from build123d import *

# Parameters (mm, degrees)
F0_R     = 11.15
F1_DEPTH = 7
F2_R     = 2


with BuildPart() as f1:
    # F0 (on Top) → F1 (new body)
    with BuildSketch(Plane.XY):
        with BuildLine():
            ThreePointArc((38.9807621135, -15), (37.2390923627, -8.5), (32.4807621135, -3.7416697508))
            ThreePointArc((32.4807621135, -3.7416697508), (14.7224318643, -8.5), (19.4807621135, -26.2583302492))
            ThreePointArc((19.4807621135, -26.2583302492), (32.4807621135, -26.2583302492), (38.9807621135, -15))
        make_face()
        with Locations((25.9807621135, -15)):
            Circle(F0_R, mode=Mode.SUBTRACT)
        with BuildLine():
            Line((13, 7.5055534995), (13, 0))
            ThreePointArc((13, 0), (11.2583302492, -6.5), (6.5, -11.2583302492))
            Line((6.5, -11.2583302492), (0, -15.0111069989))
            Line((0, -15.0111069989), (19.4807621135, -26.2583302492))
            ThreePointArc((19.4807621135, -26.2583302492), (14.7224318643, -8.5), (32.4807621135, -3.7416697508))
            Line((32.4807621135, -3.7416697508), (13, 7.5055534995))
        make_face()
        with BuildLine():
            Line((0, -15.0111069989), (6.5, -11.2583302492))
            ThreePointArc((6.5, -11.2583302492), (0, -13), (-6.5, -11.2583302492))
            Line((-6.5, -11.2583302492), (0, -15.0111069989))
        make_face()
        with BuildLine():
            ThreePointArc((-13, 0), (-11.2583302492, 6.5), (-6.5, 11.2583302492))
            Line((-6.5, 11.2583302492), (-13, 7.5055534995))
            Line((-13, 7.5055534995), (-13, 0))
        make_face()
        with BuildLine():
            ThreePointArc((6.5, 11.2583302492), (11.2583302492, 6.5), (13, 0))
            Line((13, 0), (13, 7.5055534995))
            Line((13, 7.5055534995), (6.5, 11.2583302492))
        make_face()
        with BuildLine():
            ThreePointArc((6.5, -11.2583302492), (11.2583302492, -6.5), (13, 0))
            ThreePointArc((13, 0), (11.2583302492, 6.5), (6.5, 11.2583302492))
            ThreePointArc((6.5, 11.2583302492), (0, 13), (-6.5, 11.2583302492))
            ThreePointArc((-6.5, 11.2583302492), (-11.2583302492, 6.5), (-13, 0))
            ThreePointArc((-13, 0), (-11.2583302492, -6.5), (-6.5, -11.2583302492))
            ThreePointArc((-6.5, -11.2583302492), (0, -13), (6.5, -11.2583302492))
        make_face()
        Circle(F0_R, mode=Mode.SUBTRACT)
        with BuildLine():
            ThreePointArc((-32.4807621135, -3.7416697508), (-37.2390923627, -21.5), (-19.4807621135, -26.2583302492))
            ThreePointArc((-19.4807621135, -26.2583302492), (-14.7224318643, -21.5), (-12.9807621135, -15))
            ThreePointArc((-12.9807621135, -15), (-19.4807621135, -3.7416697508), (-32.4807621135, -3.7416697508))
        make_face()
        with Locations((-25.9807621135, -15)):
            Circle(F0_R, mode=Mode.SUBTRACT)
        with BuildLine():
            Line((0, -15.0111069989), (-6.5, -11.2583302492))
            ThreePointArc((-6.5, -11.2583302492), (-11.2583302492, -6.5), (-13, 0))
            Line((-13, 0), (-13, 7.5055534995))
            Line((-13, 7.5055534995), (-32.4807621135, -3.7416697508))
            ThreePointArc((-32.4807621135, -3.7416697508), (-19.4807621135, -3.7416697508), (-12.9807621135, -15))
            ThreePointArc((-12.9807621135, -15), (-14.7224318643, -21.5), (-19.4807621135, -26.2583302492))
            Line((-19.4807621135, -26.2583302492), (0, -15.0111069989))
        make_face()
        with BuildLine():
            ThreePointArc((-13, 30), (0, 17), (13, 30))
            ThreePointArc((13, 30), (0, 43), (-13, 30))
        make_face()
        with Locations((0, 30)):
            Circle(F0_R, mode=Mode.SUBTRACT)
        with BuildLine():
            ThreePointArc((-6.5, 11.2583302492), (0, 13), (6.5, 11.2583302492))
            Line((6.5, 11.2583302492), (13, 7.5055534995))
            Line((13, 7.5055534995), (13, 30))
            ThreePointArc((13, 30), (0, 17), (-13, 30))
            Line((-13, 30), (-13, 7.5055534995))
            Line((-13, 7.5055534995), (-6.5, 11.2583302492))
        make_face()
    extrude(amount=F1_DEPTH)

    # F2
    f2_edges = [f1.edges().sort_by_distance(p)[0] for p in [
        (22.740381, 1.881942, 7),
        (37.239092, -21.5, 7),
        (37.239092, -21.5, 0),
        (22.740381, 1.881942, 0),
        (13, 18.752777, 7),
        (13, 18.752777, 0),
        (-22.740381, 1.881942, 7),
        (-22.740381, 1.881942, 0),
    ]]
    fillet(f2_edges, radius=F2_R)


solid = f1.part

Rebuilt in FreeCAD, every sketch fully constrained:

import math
import FreeCAD as App
import Part
import Sketcher
from FreeCAD import Vector
Q = App.Units.Quantity


def edges_at(feature, points):
    """Names of the edges that pass closest to the given points."""
    edges = feature.Shape.Edges
    near = lambda p: min(range(len(edges)), key=lambda i: edges[i].distToShape(Part.Vertex(*p))[0])
    return sorted({f"Edge{near(p) + 1}" for p in points})

doc = App.newDocument("Part")
body = doc.addObject("PartDesign::Body", "Body")

# Sketch on XY plane
sketch1 = body.newObject("Sketcher::SketchObject", "Sketch")
sketch1.AttachmentSupport = (doc.getObject("XY_Plane"), [""])
sketch1.MapMode = "FlatFace"
sketch1.addGeometry([
    Part.ArcOfCircle(Part.Circle(Vector(25.980762, -15, 0), Vector(0, 0, 1), 13), math.radians(-120), math.radians(60)),  # 0
    Part.LineSegment(Vector(32.480762, -3.74167, 0), Vector(13, 7.505553, 0)),  # 1
    Part.LineSegment(Vector(13, 7.505554, 0), Vector(13, 30, 0)),  # 2
    Part.ArcOfCircle(Part.Circle(Vector(0, 30, 0), Vector(0, 0, 1), 13), math.radians(0), math.radians(180)),  # 3
    Part.LineSegment(Vector(-13, 30, 0), Vector(-13, 7.505553, 0)),  # 4
    Part.LineSegment(Vector(-13, 7.505554, 0), Vector(-32.480762, -3.74167, 0)),  # 5
    Part.ArcOfCircle(Part.Circle(Vector(-25.980762, -15, 0), Vector(0, 0, 1), 13), math.radians(120), math.radians(300)),  # 6
    Part.LineSegment(Vector(-19.480762, -26.25833, 0), Vector(0, -15.011107, 0)),  # 7
    Part.LineSegment(Vector(0, -15.011107, 0), Vector(19.480762, -26.25833, 0)),  # 8
    Part.Circle(Vector(25.980762, -15, 0), Vector(0, 0, 1), 11.15),  # 9
    Part.Circle(Vector(0, 0, 0), Vector(0, 0, 1), 11.15),  # 10
    Part.Circle(Vector(-25.980762, -15, 0), Vector(0, 0, 1), 11.15),  # 11
    Part.Circle(Vector(0, 30, 0), Vector(0, 0, 1), 11.15),  # 12
], False)
sketch1.addConstraint([
    Sketcher.Constraint("Tangent", 0, 2, 1, 1),
    Sketcher.Constraint("Coincident", 1, 2, 2, 1),
    Sketcher.Constraint("Tangent", 2, 2, 3, 1),
    Sketcher.Constraint("Tangent", 3, 2, 4, 1),
    Sketcher.Constraint("Coincident", 4, 2, 5, 1),
    Sketcher.Constraint("Tangent", 5, 2, 6, 1),
    Sketcher.Constraint("Tangent", 6, 2, 7, 1),
    Sketcher.Constraint("Coincident", 7, 2, 8, 1),
    Sketcher.Constraint("Tangent", 8, 2, 0, 1),
    Sketcher.Constraint("Vertical", 2),
    Sketcher.Constraint("Vertical", 4),
    Sketcher.Constraint("Coincident", 10, 3, -1, 1),
    Sketcher.Constraint("Coincident", 9, 3, 0, 3),
    Sketcher.Constraint("Coincident", 11, 3, 6, 3),
    Sketcher.Constraint("Coincident", 12, 3, 3, 3),
    Sketcher.Constraint("Equal", 0, 3),
    Sketcher.Constraint("Equal", 3, 6),
    Sketcher.Constraint("Equal", 9, 10),
    Sketcher.Constraint("Equal", 10, 11),
    Sketcher.Constraint("Equal", 11, 12),
    Sketcher.Constraint("Symmetric", 0, 3, 6, 3, -2),
    Sketcher.Constraint("Symmetric", 1, 2, 4, 2, -2),
    Sketcher.Constraint("PointOnObject", 7, 2, -2),
    Sketcher.Constraint("Parallel", 5, 7),
    Sketcher.Constraint("Equal", 5, 7),
    Sketcher.Constraint("Radius", 0, Q("13 mm")),
    Sketcher.Constraint("Diameter", 9, Q("22.3 mm")),
    Sketcher.Constraint("DistanceY", 0, 3, -1, 1, Q("15 mm")),
    Sketcher.Constraint("DistanceY", -1, 1, 3, 3, Q("30 mm")),
    Sketcher.Constraint("DistanceY", 2, 1, 2, 2, Q("22.494446 mm")),
])
pad1 = body.newObject("PartDesign::Pad", "Pad")
pad1.Profile = sketch1
pad1.Length = 7
doc.recompute()

fillet = body.newObject("PartDesign::Fillet", "Fillet")
fillet.Base = (pad1, edges_at(pad1, [
    (22.74, 1.882, 7),
    (37.239, -21.5, 7),
    (37.239, -21.5, 0),
    (22.74, 1.882, 0),
    (13, 18.753, 7),
    (13, 18.753, 0),
    (-22.74, 1.882, 7),
    (-22.74, 1.882, 0),
]))
fillet.Radius = 2

doc.recompute()
